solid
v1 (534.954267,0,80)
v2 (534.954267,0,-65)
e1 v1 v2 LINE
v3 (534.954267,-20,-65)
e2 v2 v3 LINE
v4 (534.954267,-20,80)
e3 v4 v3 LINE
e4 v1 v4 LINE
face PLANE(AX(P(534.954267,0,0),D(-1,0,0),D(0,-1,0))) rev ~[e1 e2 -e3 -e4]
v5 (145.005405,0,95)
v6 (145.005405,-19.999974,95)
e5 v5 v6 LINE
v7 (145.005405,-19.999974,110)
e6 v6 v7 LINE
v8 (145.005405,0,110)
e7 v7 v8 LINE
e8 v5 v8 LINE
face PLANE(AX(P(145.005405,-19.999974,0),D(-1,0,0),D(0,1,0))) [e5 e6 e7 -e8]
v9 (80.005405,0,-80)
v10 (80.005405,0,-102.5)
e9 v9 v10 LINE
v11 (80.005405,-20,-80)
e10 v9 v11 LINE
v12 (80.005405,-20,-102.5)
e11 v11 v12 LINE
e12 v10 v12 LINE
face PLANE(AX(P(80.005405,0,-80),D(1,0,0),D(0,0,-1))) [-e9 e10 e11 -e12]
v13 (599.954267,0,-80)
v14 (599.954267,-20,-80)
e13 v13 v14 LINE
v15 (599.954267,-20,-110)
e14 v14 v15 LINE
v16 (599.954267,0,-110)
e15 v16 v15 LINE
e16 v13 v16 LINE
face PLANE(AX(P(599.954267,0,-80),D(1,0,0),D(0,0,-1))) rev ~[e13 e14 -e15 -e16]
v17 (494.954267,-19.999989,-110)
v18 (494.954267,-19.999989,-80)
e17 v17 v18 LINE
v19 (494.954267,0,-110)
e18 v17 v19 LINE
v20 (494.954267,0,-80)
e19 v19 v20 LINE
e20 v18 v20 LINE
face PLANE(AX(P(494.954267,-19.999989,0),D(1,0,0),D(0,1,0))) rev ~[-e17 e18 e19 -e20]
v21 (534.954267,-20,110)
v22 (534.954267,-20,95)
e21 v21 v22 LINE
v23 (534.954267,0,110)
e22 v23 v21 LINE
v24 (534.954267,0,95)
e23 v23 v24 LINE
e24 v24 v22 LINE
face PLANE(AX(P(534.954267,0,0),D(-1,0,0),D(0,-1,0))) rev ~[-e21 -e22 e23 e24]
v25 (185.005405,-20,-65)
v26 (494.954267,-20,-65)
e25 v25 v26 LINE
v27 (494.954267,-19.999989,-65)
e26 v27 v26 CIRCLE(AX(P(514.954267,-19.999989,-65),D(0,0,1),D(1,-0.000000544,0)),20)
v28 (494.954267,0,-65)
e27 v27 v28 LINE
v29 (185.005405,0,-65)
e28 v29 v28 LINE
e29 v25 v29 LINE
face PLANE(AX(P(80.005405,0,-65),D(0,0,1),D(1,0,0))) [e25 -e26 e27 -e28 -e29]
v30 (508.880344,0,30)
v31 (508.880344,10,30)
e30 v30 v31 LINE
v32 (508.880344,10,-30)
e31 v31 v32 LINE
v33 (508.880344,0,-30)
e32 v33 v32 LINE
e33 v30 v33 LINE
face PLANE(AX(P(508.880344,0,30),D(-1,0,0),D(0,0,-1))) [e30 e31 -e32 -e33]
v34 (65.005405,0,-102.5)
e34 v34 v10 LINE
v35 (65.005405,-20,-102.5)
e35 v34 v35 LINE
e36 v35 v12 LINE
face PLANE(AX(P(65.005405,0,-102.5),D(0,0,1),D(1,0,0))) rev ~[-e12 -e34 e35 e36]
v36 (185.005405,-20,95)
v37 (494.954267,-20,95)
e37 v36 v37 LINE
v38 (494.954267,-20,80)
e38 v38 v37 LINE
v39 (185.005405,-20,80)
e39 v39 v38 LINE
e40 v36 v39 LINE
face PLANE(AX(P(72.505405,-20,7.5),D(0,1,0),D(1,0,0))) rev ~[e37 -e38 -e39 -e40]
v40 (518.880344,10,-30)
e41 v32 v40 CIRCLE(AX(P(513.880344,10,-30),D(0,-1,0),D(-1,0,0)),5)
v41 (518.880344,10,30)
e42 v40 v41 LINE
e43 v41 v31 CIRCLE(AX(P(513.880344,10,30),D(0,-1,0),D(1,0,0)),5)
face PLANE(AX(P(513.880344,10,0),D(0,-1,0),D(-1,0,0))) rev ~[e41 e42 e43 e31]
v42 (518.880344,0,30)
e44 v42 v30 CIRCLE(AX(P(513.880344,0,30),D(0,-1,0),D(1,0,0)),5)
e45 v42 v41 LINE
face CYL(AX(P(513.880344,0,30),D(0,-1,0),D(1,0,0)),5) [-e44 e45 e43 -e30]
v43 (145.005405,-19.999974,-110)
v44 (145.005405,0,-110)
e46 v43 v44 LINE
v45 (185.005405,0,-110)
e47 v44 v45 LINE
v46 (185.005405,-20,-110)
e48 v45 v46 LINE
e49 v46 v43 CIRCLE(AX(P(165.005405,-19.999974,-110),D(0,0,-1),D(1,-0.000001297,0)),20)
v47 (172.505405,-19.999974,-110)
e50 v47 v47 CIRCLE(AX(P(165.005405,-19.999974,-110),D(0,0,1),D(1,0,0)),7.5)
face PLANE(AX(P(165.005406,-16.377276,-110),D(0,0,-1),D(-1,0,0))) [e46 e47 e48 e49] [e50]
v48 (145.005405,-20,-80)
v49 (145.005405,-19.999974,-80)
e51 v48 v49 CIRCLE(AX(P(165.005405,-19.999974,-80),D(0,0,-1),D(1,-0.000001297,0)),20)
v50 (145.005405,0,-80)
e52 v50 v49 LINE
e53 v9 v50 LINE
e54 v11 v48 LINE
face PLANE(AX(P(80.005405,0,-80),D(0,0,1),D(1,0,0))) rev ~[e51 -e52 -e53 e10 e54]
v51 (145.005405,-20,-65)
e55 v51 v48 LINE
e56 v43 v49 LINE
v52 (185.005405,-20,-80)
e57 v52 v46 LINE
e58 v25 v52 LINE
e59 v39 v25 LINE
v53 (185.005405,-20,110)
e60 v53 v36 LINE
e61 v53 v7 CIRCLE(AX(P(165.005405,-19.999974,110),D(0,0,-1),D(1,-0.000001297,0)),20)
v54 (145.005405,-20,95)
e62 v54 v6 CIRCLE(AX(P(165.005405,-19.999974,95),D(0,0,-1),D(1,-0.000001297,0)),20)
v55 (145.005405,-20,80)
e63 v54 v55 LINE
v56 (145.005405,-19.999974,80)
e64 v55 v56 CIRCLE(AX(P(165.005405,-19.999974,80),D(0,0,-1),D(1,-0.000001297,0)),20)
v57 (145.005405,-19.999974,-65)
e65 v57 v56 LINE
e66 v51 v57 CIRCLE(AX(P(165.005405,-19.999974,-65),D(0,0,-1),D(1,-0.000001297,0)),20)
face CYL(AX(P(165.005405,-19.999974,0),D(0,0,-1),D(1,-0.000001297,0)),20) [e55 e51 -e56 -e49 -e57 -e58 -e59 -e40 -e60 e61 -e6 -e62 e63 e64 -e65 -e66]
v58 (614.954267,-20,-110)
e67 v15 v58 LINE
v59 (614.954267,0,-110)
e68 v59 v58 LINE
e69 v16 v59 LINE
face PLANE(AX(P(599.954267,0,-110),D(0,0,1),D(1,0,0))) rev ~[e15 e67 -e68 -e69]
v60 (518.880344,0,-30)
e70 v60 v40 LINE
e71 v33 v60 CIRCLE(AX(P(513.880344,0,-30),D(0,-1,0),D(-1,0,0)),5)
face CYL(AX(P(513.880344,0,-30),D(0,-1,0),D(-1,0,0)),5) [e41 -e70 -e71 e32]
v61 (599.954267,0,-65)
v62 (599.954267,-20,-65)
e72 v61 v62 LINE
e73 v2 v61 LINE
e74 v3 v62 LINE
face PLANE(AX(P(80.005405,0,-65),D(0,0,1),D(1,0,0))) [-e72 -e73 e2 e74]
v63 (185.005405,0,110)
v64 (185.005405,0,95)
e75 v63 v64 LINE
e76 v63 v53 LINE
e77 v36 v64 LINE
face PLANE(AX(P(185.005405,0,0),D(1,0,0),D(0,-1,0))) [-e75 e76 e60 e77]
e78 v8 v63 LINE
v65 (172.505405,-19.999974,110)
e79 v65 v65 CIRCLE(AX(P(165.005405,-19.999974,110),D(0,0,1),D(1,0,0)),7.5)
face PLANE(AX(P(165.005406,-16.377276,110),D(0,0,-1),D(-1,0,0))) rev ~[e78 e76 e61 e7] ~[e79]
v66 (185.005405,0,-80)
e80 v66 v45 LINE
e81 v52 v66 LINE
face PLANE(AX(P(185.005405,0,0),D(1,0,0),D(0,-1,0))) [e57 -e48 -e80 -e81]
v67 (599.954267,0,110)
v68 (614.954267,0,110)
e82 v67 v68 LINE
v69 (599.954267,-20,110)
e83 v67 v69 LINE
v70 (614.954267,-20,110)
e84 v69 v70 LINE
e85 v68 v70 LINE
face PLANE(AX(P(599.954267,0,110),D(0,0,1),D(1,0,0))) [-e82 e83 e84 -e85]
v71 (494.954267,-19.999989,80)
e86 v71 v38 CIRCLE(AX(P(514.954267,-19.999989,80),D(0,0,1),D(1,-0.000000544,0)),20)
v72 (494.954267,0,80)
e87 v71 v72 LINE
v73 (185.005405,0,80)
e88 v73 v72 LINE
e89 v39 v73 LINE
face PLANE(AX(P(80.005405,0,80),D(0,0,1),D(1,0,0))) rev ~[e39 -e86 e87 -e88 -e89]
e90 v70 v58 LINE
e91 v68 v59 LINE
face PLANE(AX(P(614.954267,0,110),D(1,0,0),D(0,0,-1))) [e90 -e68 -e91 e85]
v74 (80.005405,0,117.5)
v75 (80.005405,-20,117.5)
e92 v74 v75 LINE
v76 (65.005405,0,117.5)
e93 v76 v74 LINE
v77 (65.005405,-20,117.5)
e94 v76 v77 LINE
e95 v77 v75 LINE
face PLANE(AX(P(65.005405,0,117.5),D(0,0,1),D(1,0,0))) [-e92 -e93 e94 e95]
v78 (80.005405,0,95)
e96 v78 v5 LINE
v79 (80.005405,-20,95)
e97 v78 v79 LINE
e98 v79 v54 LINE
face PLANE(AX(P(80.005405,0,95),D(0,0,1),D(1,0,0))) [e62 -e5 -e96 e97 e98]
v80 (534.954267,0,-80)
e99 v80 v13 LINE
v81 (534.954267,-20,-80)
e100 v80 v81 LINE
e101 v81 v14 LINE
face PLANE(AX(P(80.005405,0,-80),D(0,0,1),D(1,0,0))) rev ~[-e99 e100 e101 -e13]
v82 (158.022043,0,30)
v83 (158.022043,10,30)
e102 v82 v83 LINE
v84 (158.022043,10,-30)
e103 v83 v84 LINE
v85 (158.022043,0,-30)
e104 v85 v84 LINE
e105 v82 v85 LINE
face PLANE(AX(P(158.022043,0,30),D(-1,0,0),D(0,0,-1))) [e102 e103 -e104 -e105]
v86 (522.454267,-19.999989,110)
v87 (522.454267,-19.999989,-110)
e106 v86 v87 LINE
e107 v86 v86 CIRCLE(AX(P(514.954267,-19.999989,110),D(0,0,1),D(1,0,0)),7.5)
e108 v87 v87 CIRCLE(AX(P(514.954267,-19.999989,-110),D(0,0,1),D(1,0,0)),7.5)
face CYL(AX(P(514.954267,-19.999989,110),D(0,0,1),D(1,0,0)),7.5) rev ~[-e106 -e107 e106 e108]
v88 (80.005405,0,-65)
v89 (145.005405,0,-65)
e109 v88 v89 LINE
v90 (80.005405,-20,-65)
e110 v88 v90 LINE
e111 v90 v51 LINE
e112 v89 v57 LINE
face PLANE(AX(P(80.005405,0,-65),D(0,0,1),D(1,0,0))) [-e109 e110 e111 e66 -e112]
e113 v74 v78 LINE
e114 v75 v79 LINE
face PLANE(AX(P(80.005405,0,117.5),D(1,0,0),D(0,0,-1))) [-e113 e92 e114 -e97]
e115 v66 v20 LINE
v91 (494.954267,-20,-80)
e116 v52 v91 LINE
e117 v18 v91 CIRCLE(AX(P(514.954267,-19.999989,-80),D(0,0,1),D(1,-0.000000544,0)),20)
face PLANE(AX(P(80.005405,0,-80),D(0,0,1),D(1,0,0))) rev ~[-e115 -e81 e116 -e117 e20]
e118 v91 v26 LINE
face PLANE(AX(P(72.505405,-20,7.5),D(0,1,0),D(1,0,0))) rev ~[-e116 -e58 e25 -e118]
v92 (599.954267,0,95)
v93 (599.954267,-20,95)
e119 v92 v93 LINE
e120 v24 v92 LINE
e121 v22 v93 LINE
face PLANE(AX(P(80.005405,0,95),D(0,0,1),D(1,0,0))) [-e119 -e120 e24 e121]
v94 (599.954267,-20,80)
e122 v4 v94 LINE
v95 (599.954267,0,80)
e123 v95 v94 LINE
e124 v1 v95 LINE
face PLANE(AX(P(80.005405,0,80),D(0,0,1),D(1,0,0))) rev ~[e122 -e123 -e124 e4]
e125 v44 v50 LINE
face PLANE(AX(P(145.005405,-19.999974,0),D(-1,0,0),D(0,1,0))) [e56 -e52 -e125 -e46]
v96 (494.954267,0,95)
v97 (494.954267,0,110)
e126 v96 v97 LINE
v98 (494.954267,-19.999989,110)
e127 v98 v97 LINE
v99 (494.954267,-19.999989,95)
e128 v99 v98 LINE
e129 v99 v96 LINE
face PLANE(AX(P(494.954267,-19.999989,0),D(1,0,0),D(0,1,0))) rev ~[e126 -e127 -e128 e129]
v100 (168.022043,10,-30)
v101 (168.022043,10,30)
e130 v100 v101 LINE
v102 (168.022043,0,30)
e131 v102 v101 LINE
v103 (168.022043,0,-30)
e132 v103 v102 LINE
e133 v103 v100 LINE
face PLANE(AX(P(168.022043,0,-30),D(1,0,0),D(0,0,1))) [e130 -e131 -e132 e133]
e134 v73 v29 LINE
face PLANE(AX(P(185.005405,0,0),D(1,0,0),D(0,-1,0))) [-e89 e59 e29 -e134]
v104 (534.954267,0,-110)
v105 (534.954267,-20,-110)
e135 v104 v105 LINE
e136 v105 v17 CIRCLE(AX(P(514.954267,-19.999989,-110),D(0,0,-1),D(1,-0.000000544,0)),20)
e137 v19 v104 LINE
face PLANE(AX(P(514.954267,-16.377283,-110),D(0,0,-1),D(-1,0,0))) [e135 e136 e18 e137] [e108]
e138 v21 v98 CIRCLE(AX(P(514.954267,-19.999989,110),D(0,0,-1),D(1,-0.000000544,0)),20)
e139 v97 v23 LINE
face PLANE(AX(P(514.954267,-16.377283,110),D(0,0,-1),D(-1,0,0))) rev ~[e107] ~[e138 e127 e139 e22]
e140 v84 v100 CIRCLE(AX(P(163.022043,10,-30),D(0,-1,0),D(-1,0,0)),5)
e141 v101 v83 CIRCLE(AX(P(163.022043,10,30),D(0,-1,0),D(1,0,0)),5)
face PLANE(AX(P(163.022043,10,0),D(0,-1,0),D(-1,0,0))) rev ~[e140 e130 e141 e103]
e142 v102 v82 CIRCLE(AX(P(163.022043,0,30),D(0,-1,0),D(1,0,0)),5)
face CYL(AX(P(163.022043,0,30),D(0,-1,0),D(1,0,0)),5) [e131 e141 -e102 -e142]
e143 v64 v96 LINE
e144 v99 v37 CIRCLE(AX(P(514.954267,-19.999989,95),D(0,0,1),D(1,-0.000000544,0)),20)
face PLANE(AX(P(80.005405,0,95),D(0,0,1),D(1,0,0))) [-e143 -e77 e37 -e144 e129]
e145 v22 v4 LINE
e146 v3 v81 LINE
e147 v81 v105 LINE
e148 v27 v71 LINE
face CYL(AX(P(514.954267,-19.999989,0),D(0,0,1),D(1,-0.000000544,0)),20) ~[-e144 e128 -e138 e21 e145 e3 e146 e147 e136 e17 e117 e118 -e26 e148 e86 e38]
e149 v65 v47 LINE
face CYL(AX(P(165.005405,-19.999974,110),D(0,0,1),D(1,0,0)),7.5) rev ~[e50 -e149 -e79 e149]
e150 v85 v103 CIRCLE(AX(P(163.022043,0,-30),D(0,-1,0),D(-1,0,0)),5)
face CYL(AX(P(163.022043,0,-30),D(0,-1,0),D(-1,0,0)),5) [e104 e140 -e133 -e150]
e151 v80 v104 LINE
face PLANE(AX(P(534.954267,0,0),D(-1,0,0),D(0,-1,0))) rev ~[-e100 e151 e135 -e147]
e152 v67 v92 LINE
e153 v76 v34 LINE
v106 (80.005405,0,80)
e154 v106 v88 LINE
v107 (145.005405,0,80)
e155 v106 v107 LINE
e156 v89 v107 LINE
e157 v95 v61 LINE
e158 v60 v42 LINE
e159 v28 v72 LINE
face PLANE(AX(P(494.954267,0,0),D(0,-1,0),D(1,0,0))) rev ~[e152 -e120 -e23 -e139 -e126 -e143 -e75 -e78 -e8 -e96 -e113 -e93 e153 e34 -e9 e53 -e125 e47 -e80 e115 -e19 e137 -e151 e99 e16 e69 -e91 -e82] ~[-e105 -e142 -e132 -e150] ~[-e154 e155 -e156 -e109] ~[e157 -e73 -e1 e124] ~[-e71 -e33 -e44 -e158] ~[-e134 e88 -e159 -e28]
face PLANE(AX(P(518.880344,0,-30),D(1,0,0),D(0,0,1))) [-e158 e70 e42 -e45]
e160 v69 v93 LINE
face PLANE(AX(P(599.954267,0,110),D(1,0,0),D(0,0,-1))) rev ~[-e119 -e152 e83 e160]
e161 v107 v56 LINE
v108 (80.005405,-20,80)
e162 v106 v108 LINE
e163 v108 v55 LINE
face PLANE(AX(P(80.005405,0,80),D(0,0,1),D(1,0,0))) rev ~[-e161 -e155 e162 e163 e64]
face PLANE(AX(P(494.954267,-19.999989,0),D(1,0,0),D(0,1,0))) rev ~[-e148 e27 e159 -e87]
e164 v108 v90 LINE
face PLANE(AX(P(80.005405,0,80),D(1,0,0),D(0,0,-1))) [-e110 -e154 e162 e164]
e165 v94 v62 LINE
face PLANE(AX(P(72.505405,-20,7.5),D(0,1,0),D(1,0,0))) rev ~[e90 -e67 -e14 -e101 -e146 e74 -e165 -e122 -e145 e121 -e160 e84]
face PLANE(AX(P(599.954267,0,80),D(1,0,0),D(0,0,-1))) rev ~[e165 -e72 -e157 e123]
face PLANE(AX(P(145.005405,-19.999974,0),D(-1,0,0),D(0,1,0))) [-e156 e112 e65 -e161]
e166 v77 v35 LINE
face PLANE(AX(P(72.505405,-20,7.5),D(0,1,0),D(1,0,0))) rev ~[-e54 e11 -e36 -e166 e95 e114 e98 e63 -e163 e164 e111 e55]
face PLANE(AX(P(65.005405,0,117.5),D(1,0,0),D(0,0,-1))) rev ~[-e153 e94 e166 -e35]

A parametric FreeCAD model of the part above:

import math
import FreeCAD as App
import Part
import Sketcher

V = App.Vector
Q = App.Units.Quantity


def add_polygon(sketch, points):
    """Adds a closed chain of lines whose ends are joined by coincident constraints."""
    first, n = sketch.GeometryCount, len(points)
    for a, b in zip(points, points[1:] + points[:1]):
        sketch.addGeometry(Part.LineSegment(App.Vector(*a, 0), App.Vector(*b, 0)), False)
    for i in range(n):
        sketch.addConstraint(Sketcher.Constraint("Coincident", first + i, 2, first + (i + 1) % n, 1))

doc = App.newDocument("Part")
body = doc.addObject("PartDesign::Body", "Body")

# Sketch on XZ plane
sketch1 = body.newObject("Sketcher::SketchObject", "Sketch")
sketch1.AttachmentSupport = (doc.getObject("XZ_Plane"), [""])
sketch1.MapMode = "FlatFace"
add_polygon(sketch1, [(65.005405, -102.5), (65.005405, 117.5), (80.005405, 117.5), (80.005405, 95), (599.954267, 95), (599.954267, 110), (614.954267, 110), (614.954267, -110), (599.954267, -110), (599.954267, -80), (80.005405, -80), (80.005405, -102.5)])  # lines 0-11
add_polygon(sketch1, [(80.005405, 80), (80.005405, -65), (599.954267, -65), (599.954267, 80)])  # lines 12-15
sketch1.addConstraint([
    Sketcher.Constraint("Vertical", 0),
    Sketcher.Constraint("Horizontal", 1),
    Sketcher.Constraint("Vertical", 2),
    Sketcher.Constraint("Horizontal", 3),
    Sketcher.Constraint("Vertical", 4),
    Sketcher.Constraint("Horizontal", 5),
    Sketcher.Constraint("Vertical", 6),
    Sketcher.Constraint("Horizontal", 7),
    Sketcher.Constraint("Vertical", 8),
    Sketcher.Constraint("Horizontal", 9),
    Sketcher.Constraint("Vertical", 10),
    Sketcher.Constraint("Horizontal", 11),
    Sketcher.Constraint("Vertical", 12),
    Sketcher.Constraint("Horizontal", 13),
    Sketcher.Constraint("Vertical", 14),
    Sketcher.Constraint("Horizontal", 15),
    Sketcher.Constraint("Symmetric", 4, 2, 7, 2, -1),
    Sketcher.Constraint("Symmetric", 8, 2, 14, 2, -1),
    Sketcher.Constraint("Vertical", 2, 2, 9, 2),
    Sketcher.Constraint("Vertical", 10, 2, 12, 2),
    Sketcher.Constraint("Equal", 1, 5),
    Sketcher.Constraint("Equal", 11, 4),
    Sketcher.Constraint("Equal", 0, 6),
    Sketcher.Constraint("Equal", 2, 10),
    Sketcher.Constraint("DistanceX", 1, 1, 1, 2, Q("15 mm")),
    Sketcher.Constraint("DistanceY", 0, 1, 0, 2, Q("220 mm")),
    Sketcher.Constraint("DistanceY", 8, 1, 8, 2, Q("30 mm")),
    Sketcher.Constraint("DistanceY", 12, 2, 12, 1, Q("145 mm")),
    Sketcher.Constraint("DistanceX", 3, 1, 3, 2, Q("519.948861 mm")),
    Sketcher.Constraint("DistanceX", -1, 1, 0, 2, Q("65.005405 mm")),
])
pad1 = body.newObject("PartDesign::Pad", "Pad")
pad1.Profile = sketch1
pad1.Length = 20

# Sketch on XY plane
sketch2 = body.newObject("Sketcher::SketchObject", "Sketch001")
sketch2.AttachmentSupport = (doc.getObject("XY_Plane"), [""])
sketch2.MapMode = "FlatFace"
sketch2.addGeometry([
    Part.LineSegment(V(185.005405, 0, 0), V(145.005405, 0, 0)),  # 0
    Part.LineSegment(V(145.005405, 0, 0), V(145.005405, -19.999974, 0)),  # 1
    Part.ArcOfCircle(Part.Circle(V(165.005405, -19.999974, 0), V(0, 0, 1), 20), math.radians(180), math.radians(359.999926)),  # 2
    Part.LineSegment(V(185.005405, -20, 0), V(185.005405, 0, 0)),  # 3
    Part.LineSegment(V(534.954267, 0, 0), V(494.954267, 0, 0)),  # 4
    Part.LineSegment(V(494.954267, 0, 0), V(494.954267, -19.999989, 0)),  # 5
    Part.ArcOfCircle(Part.Circle(V(514.954267, -19.999989, 0), V(0, 0, 1), 20), math.radians(180), math.radians(359.999969)),  # 6
    Part.LineSegment(V(534.954267, -20, 0), V(534.954267, 0, 0)),  # 7
], False)
sketch2.addConstraint([
    Sketcher.Constraint("Coincident", 0, 2, 1, 1),
    Sketcher.Constraint("Coincident", 1, 2, 2, 1),
    Sketcher.Constraint("Coincident", 2, 2, 3, 1),
    Sketcher.Constraint("Coincident", 3, 2, 0, 1),
    Sketcher.Constraint("Coincident", 4, 2, 5, 1),
    Sketcher.Constraint("Coincident", 5, 2, 6, 1),
    Sketcher.Constraint("Coincident", 6, 2, 7, 1),
    Sketcher.Constraint("Coincident", 7, 2, 4, 1),
    Sketcher.Constraint("Horizontal", 0),
    Sketcher.Constraint("Vertical", 1),
    Sketcher.Constraint("Vertical", 3),
    Sketcher.Constraint("Horizontal", 4),
    Sketcher.Constraint("Vertical", 5),
    Sketcher.Constraint("Vertical", 7),
    Sketcher.Constraint("PointOnObject", 0, 2, -1),
    Sketcher.Constraint("PointOnObject", 4, 2, -1),
    Sketcher.Constraint("Radius", 2, Q("20 mm")),
    Sketcher.Constraint("Radius", 6, Q("20 mm")),
    Sketcher.Constraint("DistanceY", 3, 1, 3, 2, Q("20 mm")),
    Sketcher.Constraint("DistanceY", 7, 1, 7, 2, Q("20 mm")),
    Sketcher.Constraint("DistanceY", 5, 2, 5, 1, Q("19.999989 mm")),
    Sketcher.Constraint("DistanceY", 1, 2, 1, 1, Q("19.999974 mm")),
    Sketcher.Constraint("DistanceY", 6, 3, -1, 1, Q("19.999989 mm")),
    Sketcher.Constraint("DistanceX", 2, 3, 6, 3, Q("349.948861 mm")),
    Sketcher.Constraint("DistanceX", -1, 1, 2, 3, Q("165.005405 mm")),
    Sketcher.Constraint("DistanceY", 2, 3, -1, 1, Q("19.999974 mm")),
])
pad2 = body.newObject("PartDesign::Pad", "Pad001")
pad2.Profile = sketch2
pad2.Length = 220
pad2.Midplane = True

# Sketch on XY plane
sketch3 = body.newObject("Sketcher::SketchObject", "Sketch002")
sketch3.AttachmentSupport = (doc.getObject("XY_Plane"), [""])
sketch3.MapMode = "FlatFace"
sketch3.AttachmentOffset = App.Placement(V(0, 0, 110), App.Rotation())
sketch3.addGeometry([
    Part.Circle(V(165.005405, -19.999974, 0), V(0, 0, 1), 7.5),
    Part.Circle(V(514.954267, -19.999989, 0), V(0, 0, 1), 7.5),
], False)
sketch3.addConstraint([
    Sketcher.Constraint("Equal", 0, 1),
    Sketcher.Constraint("Diameter", 0, Q("15 mm")),
    Sketcher.Constraint("DistanceY", 1, 3, -1, 1, Q("19.999989 mm")),
    Sketcher.Constraint("DistanceX", 0, 3, 1, 3, Q("349.948861 mm")),
    Sketcher.Constraint("DistanceX", -1, 1, 0, 3, Q("165.005405 mm")),
    Sketcher.Constraint("DistanceY", 0, 3, -1, 1, Q("19.999974 mm")),
])
pocket1 = body.newObject("PartDesign::Pocket", "Pocket")
pocket1.Profile = sketch3
pocket1.Type = "ThroughAll"

# Sketch on XZ plane
sketch4 = body.newObject("Sketcher::SketchObject", "Sketch003")
sketch4.AttachmentSupport = (doc.getObject("XZ_Plane"), [""])
sketch4.MapMode = "FlatFace"
sketch4.addGeometry([
    Part.LineSegment(V(158.022043, -30, 0), V(158.022043, 30, 0)),  # 0
    Part.ArcOfCircle(Part.Circle(V(163.022043, 30, 0), V(0, 0, 1), 5), math.radians(0), math.radians(180)),  # 1
    Part.LineSegment(V(168.022043, 30, 0), V(168.022043, -30, 0)),  # 2
    Part.ArcOfCircle(Part.Circle(V(163.022043, -30, 0), V(0, 0, 1), 5), math.radians(180), math.radians(360)),  # 3
    Part.LineSegment(V(508.880344, -30, 0), V(508.880344, 30, 0)),  # 4
    Part.ArcOfCircle(Part.Circle(V(513.880344, 30, 0), V(0, 0, 1), 5), math.radians(0), math.radians(180)),  # 5
    Part.LineSegment(V(518.880344, 30, 0), V(518.880344, -30, 0)),  # 6
    Part.ArcOfCircle(Part.Circle(V(513.880344, -30, 0), V(0, 0, 1), 5), math.radians(180), math.radians(360)),  # 7
], False)
sketch4.addConstraint([
    Sketcher.Constraint("Tangent", 0, 2, 1, 2),
    Sketcher.Constraint("Tangent", 1, 1, 2, 1),
    Sketcher.Constraint("Tangent", 2, 2, 3, 2),
    Sketcher.Constraint("Tangent", 3, 1, 0, 1),
    Sketcher.Constraint("Tangent", 4, 2, 5, 2),
    Sketcher.Constraint("Tangent", 5, 1, 6, 1),
    Sketcher.Constraint("Tangent", 6, 2, 7, 2),
    Sketcher.Constraint("Tangent", 7, 1, 4, 1),
    Sketcher.Constraint("Vertical", 0),
    Sketcher.Constraint("Vertical", 2),
    Sketcher.Constraint("Vertical", 4),
    Sketcher.Constraint("Vertical", 6),
    Sketcher.Constraint("Equal", 3, 5),
    Sketcher.Constraint("Horizontal", 1, 3, 5, 3),
    Sketcher.Constraint("Horizontal", 3, 3, 7, 3),
    Sketcher.Constraint("Radius", 1, Q("5 mm")),
    Sketcher.Constraint("DistanceY", 0, 1, 0, 2, Q("60 mm")),
    Sketcher.Constraint("DistanceY", -1, 1, 1, 3, Q("30 mm")),
    Sketcher.Constraint("DistanceX", 1, 3, 5, 3, Q("350.858301 mm")),
    Sketcher.Constraint("DistanceX", -1, 1, 1, 3, Q("163.022043 mm")),
])
pad3 = body.newObject("PartDesign::Pad", "Pad002")
pad3.Profile = sketch4
pad3.Length = 10
pad3.Reversed = True

doc.recompute()
